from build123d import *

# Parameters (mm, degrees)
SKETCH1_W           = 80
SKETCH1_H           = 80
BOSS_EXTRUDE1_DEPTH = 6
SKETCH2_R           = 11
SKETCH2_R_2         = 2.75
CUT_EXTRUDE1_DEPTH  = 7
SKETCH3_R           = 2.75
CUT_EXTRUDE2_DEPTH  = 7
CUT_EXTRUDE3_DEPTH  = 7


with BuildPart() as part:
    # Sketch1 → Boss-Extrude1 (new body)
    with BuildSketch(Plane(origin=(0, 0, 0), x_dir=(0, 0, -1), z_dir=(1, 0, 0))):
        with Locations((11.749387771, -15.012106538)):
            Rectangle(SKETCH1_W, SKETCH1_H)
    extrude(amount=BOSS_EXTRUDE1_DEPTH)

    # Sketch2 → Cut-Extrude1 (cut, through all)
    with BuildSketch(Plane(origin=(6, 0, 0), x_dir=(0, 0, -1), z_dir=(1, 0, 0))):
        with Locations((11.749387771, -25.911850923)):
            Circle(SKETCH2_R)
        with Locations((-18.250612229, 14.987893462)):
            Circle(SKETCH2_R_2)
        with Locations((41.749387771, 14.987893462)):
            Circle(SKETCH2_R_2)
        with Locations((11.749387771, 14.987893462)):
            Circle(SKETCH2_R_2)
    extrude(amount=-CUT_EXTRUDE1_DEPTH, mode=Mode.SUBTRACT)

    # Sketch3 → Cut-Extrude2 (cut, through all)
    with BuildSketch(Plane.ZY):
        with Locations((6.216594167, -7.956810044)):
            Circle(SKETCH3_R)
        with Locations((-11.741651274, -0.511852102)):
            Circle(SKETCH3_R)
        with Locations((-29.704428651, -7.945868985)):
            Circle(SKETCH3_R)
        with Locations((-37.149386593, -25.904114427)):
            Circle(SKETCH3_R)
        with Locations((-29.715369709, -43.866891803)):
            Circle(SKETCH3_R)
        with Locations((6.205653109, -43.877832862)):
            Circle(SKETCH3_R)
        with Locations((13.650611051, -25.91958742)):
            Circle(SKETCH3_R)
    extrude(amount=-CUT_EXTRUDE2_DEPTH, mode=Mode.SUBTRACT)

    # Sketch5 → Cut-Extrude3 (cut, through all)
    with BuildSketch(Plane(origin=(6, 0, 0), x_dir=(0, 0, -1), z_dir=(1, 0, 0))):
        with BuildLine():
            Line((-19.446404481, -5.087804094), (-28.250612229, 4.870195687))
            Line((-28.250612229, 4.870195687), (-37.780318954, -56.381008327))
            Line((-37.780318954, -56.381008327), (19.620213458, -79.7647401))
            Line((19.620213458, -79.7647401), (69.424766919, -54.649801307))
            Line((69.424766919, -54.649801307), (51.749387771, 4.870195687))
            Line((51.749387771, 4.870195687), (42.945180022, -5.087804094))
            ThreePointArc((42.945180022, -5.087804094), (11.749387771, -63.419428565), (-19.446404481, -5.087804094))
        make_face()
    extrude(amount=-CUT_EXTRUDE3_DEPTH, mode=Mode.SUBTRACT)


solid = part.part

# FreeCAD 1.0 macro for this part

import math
import FreeCAD as App
import Part
import Sketcher

V = App.Vector
Q = App.Units.Quantity


def add_polygon(sketch, points):
    """Adds a closed chain of lines whose ends are joined by coincident constraints."""
    first, n = sketch.GeometryCount, len(points)
    for a, b in zip(points, points[1:] + points[:1]):
        sketch.addGeometry(Part.LineSegment(App.Vector(*a, 0), App.Vector(*b, 0)), False)
    for i in range(n):
        sketch.addConstraint(Sketcher.Constraint("Coincident", first + i, 2, first + (i + 1) % n, 1))

doc = App.newDocument("Part")
body = doc.addObject("PartDesign::Body", "Body")

# Sketch on YZ plane
sketch1 = body.newObject("Sketcher::SketchObject", "Sketch")
sketch1.AttachmentSupport = (doc.getObject("YZ_Plane"), [""])
sketch1.MapMode = "FlatFace"
add_polygon(sketch1, [(25, 28), (-55, 28), (-55, -52), (25, -52)])  # lines 0-3
sketch1.addConstraint([
    Sketcher.Constraint("Horizontal", 0),
    Sketcher.Constraint("Vertical", 1),
    Sketcher.Constraint("Horizontal", 2),
    Sketcher.Constraint("Vertical", 3),
    Sketcher.Constraint("Equal", 2, 1),
    Sketcher.Constraint("DistanceX", 0, 2, 0, 1, Q("80 mm")),
    Sketcher.Constraint("DistanceX", 0, 2, -1, 1, Q("55.012107 mm")),
    Sketcher.Constraint("DistanceY", -1, 1, 0, 2, Q("28.250612 mm")),
])
pad1 = body.newObject("PartDesign::Pad", "Pad")
pad1.Profile = sketch1
pad1.Length = 6

# Sketch on YZ plane
sketch2 = body.newObject("Sketcher::SketchObject", "Sketch001")
sketch2.AttachmentSupport = (doc.getObject("YZ_Plane"), [""])
sketch2.MapMode = "FlatFace"
sketch2.AttachmentOffset = App.Placement(V(0, 0, 6), App.Rotation())
sketch2.addGeometry([
    Part.Circle(V(-25.9, -11.7, 0), V(0, 0, 1), 11),
    Part.Circle(V(15, 18.3, 0), V(0, 0, 1), 2.8),
    Part.Circle(V(15, -41.7, 0), V(0, 0, 1), 2.8),
    Part.Circle(V(15, -11.7, 0), V(0, 0, 1), 2.8),
], False)
sketch2.addConstraint([
    Sketcher.Constraint("Equal", 1, 2),
    Sketcher.Constraint("Equal", 2, 3),
    Sketcher.Constraint("Horizontal", 0, 3, 3, 3),
    Sketcher.Constraint("Vertical", 1, 3, 2, 3),
    Sketcher.Constraint("Vertical", 2, 3, 3, 3),
    Sketcher.Constraint("Diameter", 0, Q("22 mm")),
    Sketcher.Constraint("Diameter", 1, Q("5.5 mm")),
    Sketcher.Constraint("DistanceY", 0, 3, 1, 3, Q("30 mm")),
    Sketcher.Constraint("DistanceY", 2, 3, 0, 3, Q("30 mm")),
    Sketcher.Constraint("DistanceX", 0, 3, -1, 1, Q("25.911851 mm")),
    Sketcher.Constraint("DistanceY", 0, 3, -1, 1, Q("11.749388 mm")),
    Sketcher.Constraint("DistanceX", -1, 1, 1, 3, Q("14.987893 mm")),
])
pocket1 = body.newObject("PartDesign::Pocket", "Pocket")
pocket1.Profile = sketch2
pocket1.Type = "ThroughAll"

# Sketch on YZ plane
sketch3 = body.newObject("Sketcher::SketchObject", "Sketch002")
sketch3.AttachmentSupport = (doc.getObject("YZ_Plane"), [""])
sketch3.MapMode = "FlatFace"
sketch3.addGeometry([
    Part.Circle(V(-8, 6.2, 0), V(0, 0, 1), 2.8),  # 0
    Part.Circle(V(-0.5, -11.7, 0), V(0, 0, 1), 2.8),  # 1
    Part.Circle(V(-7.9, -29.7, 0), V(0, 0, 1), 2.8),  # 2
    Part.Circle(V(-25.9, -37.1, 0), V(0, 0, 1), 2.8),  # 3
    Part.Circle(V(-43.9, -29.7, 0), V(0, 0, 1), 2.8),  # 4
    Part.Circle(V(-43.9, 6.2, 0), V(0, 0, 1), 2.8),  # 5
    Part.Circle(V(-25.9, 13.7, 0), V(0, 0, 1), 2.8),  # 6
], False)
sketch3.addConstraint([
    Sketcher.Constraint("Equal", 0, 1),
    Sketcher.Constraint("Equal", 1, 2),
    Sketcher.Constraint("Equal", 2, 3),
    Sketcher.Constraint("Equal", 3, 4),
    Sketcher.Constraint("Equal", 4, 5),
    Sketcher.Constraint("Equal", 5, 6),
    Sketcher.Constraint("Diameter", 0, Q("5.5 mm")),
    Sketcher.Constraint("DistanceX", 0, 3, -1, 1, Q("7.95681 mm")),
    Sketcher.Constraint("DistanceY", 1, 3, -1, 1, Q("11.741651 mm")),
    Sketcher.Constraint("DistanceX", 2, 3, -1, 1, Q("7.945869 mm")),
    Sketcher.Constraint("DistanceY", 2, 3, -1, 1, Q("29.704429 mm")),
    Sketcher.Constraint("DistanceX", 4, 3, -1, 1, Q("43.866892 mm")),
    Sketcher.Constraint("DistanceY", 4, 3, -1, 1, Q("29.71537 mm")),
    Sketcher.Constraint("DistanceY", -1, 1, 6, 3, Q("13.650611 mm")),
    Sketcher.Constraint("DistanceY", 3, 3, 0, 3, Q("43.365981 mm")),
    Sketcher.Constraint("DistanceX", 4, 3, 1, 3, Q("43.35504 mm")),
    Sketcher.Constraint("DistanceY", 5, 3, 0, 3, Q("0.010941 mm")),
    Sketcher.Constraint("DistanceX", 5, 3, 4, 3, Q("0.010941 mm")),
    Sketcher.Constraint("DistanceX", 5, 3, 3, 3, Q("17.973718 mm")),
    Sketcher.Constraint("DistanceY", 2, 3, 5, 3, Q("35.910082 mm")),
    Sketcher.Constraint("DistanceX", 6, 3, 2, 3, Q("17.973718 mm")),
])
pocket2 = body.newObject("PartDesign::Pocket", "Pocket001")
pocket2.Profile = sketch3
pocket2.Type = "ThroughAll"
pocket2.Reversed = True

# Sketch on YZ plane
sketch4 = body.newObject("Sketcher::SketchObject", "Sketch003")
sketch4.AttachmentSupport = (doc.getObject("YZ_Plane"), [""])
sketch4.MapMode = "FlatFace"
sketch4.AttachmentOffset = App.Placement(V(0, 0, 6), App.Rotation())
sketch4.addGeometry([
    Part.LineSegment(V(-5, 19, 0), V(5, 28, 0)),  # 0
    Part.LineSegment(V(5, 28, 0), V(-56, 38, 0)),  # 1
    Part.LineSegment(V(-56, 38, 0), V(-80, -20, 0)),  # 2
    Part.LineSegment(V(-80, -20, 0), V(-55, -69, 0)),  # 3
    Part.LineSegment(V(-55, -69, 0), V(5, -52, 0)),  # 4
    Part.LineSegment(V(5, -52, 0), V(-5, -43, 0)),  # 5
    Part.ArcOfCircle(Part.Circle(V(-26, -12, 0), V(0, 0, 1), 38), math.radians(56), math.radians(304)),  # 6
], False)
sketch4.addConstraint([
    Sketcher.Constraint("Coincident", 0, 2, 1, 1),
    Sketcher.Constraint("Coincident", 1, 2, 2, 1),
    Sketcher.Constraint("Coincident", 2, 2, 3, 1),
    Sketcher.Constraint("Coincident", 3, 2, 4, 1),
    Sketcher.Constraint("Coincident", 4, 2, 5, 1),
    Sketcher.Constraint("Coincident", 5, 2, 6, 2),
    Sketcher.Constraint("Coincident", 6, 1, 0, 1),
    Sketcher.Constraint("Vertical", 0, 2, 4, 2),
    Sketcher.Constraint("Vertical", 5, 2, 6, 1),
    Sketcher.Constraint("Equal", 0, 5),
    Sketcher.Constraint("DistanceY", 6, 3, 0, 2, Q("40 mm")),
    Sketcher.Constraint("Radius", 6, Q("37.507578 mm")),
    Sketcher.Constraint("DistanceX", 5, 2, 4, 2, Q("9.958 mm")),
    Sketcher.Constraint("DistanceX", 3, 2, -1, 1, Q("54.649801 mm")),
    Sketcher.Constraint("Distance", 4, Q("62.089041 mm")),
    Sketcher.Constraint("DistanceX", 6, 3, -1, 1, Q("25.911851 mm")),
    Sketcher.Constraint("DistanceX", 1, 2, -1, 1, Q("56.381008 mm")),
    Sketcher.Constraint("DistanceY", -1, 1, 1, 2, Q("37.780319 mm")),
    Sketcher.Constraint("DistanceX", 2, 2, -1, 1, Q("79.76474 mm")),
    Sketcher.Constraint("DistanceY", 5, 2, -1, 1, Q("42.94518 mm")),
    Sketcher.Constraint("DistanceY", 3, 2, 6, 3, Q("57.675379 mm")),
    Sketcher.Constraint("Distance", 2, Q("61.980804 mm")),
])
pocket3 = body.newObject("PartDesign::Pocket", "Pocket002")
pocket3.Profile = sketch4
pocket3.Type = "ThroughAll"

doc.recompute()
